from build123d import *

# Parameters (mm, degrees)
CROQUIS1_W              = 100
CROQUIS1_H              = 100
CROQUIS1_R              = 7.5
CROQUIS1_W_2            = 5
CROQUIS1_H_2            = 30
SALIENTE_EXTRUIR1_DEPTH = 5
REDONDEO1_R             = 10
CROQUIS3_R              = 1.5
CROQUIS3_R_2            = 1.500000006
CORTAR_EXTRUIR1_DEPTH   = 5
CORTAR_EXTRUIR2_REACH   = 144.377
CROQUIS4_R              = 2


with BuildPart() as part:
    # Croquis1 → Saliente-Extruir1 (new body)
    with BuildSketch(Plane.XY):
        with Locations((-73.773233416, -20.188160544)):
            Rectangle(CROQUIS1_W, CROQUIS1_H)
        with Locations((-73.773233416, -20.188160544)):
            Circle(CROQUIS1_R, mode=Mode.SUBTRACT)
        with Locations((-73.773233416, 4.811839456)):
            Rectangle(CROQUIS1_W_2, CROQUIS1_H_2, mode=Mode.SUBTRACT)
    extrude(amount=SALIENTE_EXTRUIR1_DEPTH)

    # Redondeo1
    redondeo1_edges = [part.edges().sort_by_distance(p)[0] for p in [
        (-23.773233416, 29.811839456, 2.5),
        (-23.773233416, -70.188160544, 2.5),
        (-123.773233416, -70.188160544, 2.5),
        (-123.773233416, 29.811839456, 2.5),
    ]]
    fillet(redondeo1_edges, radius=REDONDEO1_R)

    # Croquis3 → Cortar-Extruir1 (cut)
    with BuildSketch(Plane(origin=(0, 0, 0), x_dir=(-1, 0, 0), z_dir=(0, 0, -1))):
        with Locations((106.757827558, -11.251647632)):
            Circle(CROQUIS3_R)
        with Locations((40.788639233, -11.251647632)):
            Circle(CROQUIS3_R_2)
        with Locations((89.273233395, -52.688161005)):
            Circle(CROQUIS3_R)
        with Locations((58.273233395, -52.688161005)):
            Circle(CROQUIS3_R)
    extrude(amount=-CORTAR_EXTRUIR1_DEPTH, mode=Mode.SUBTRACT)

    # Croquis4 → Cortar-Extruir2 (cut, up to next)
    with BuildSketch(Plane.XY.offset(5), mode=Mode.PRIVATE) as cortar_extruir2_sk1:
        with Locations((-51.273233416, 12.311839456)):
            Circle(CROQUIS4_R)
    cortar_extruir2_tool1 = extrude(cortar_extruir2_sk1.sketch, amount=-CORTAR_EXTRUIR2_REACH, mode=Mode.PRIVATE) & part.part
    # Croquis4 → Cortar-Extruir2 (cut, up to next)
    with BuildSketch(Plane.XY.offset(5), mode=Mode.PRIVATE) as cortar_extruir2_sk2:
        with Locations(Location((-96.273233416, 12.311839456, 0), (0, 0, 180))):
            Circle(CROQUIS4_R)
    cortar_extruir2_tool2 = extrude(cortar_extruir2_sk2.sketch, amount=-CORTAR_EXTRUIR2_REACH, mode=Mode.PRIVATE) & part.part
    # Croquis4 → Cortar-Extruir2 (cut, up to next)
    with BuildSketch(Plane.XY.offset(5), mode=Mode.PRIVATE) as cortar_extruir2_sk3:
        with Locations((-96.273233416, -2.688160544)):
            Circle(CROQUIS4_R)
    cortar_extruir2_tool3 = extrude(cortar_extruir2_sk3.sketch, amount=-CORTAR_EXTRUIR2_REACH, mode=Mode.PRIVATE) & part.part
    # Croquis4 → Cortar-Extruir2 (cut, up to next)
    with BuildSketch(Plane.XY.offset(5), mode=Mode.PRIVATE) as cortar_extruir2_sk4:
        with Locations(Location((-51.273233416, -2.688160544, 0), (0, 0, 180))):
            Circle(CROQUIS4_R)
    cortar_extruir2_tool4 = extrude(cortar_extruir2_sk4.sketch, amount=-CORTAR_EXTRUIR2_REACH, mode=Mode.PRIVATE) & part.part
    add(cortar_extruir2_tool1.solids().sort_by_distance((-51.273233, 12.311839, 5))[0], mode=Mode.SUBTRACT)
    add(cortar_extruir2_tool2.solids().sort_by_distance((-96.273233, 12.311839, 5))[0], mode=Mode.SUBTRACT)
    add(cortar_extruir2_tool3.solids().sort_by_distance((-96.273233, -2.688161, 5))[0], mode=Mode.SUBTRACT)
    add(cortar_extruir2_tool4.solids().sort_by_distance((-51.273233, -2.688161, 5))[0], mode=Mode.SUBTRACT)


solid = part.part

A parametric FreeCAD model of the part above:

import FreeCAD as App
import Part
import Sketcher
Q = App.Units.Quantity


def edges_at(feature, points):
    """Names of the edges that pass closest to the given points."""
    edges = feature.Shape.Edges
    near = lambda p: min(range(len(edges)), key=lambda i: edges[i].distToShape(Part.Vertex(*p))[0])
    return sorted({f"Edge{near(p) + 1}" for p in points})

doc = App.newDocument("Part")
body = doc.addObject("PartDesign::Body", "Body")

# Sketch on XY plane
sketch1 = doc.addObject("Sketcher::SketchObject", "Sketch")
body.addObject(sketch1)
sketch1.AttachmentSupport = (doc.XY_Plane, [""])
sketch1.MapMode = "FlatFace"
sketch1.addGeometry([
    Part.LineSegment(App.Vector(-124, 30, 0), App.Vector(-124, -70, 0)),  # 0
    Part.LineSegment(App.Vector(-124, -70, 0), App.Vector(-24, -70, 0)),  # 1
    Part.LineSegment(App.Vector(-24, -70, 0), App.Vector(-24, 30, 0)),  # 2
    Part.LineSegment(App.Vector(-24, 30, 0), App.Vector(-124, 30, 0)),  # 3
    Part.Circle(App.Vector(-74, -20, 0), App.Vector(0, 0, 1), 8),  # 4
    Part.LineSegment(App.Vector(-71, -10, 0), App.Vector(-76, -10, 0)),  # 5
    Part.LineSegment(App.Vector(-76, -10, 0), App.Vector(-76, 20, 0)),  # 6
    Part.LineSegment(App.Vector(-76, 20, 0), App.Vector(-71, 20, 0)),  # 7
    Part.LineSegment(App.Vector(-71, 20, 0), App.Vector(-71, -10, 0)),  # 8
], False)
sketch1.addConstraint([
    Sketcher.Constraint("Coincident", 0, 2, 1, 1),
    Sketcher.Constraint("Coincident", 1, 2, 2, 1),
    Sketcher.Constraint("Coincident", 2, 2, 3, 1),
    Sketcher.Constraint("Coincident", 3, 2, 0, 1),
    Sketcher.Constraint("Coincident", 5, 2, 6, 1),
    Sketcher.Constraint("Coincident", 6, 2, 7, 1),
    Sketcher.Constraint("Coincident", 7, 2, 8, 1),
    Sketcher.Constraint("Coincident", 8, 2, 5, 1),
    Sketcher.Constraint("Vertical", 0),
    Sketcher.Constraint("Horizontal", 1),
    Sketcher.Constraint("Vertical", 2),
    Sketcher.Constraint("Horizontal", 3),
    Sketcher.Constraint("Horizontal", 5),
    Sketcher.Constraint("Vertical", 6),
    Sketcher.Constraint("Horizontal", 7),
    Sketcher.Constraint("Vertical", 8),
    Sketcher.Constraint("Equal", 3, 0),
    Sketcher.Constraint("Diameter", 4, Q("15 mm")),
    Sketcher.Constraint("DistanceX", 1, 1, 1, 2, Q("100 mm")),
    Sketcher.Constraint("DistanceX", 5, 2, 5, 1, Q("5 mm")),
    Sketcher.Constraint("DistanceY", 6, 1, 6, 2, Q("30 mm")),
    Sketcher.Constraint("DistanceX", 0, 2, 4, 3, Q("50 mm")),
    Sketcher.Constraint("DistanceY", 0, 2, 4, 3, Q("50 mm")),
    Sketcher.Constraint("DistanceY", 4, 3, 5, 2, Q("10 mm")),
    Sketcher.Constraint("DistanceX", 5, 2, 4, 3, Q("2.5 mm")),
    Sketcher.Constraint("DistanceY", 4, 3, -1, 1, Q("20.188161 mm")),
    Sketcher.Constraint("DistanceX", 4, 3, -1, 1, Q("73.773233 mm")),
])
pad1 = doc.addObject("PartDesign::Pad", "Pad")
body.addObject(pad1)
pad1.Profile = sketch1
pad1.Length = 5
doc.recompute()

fillet = doc.addObject("PartDesign::Fillet", "Fillet")
body.addObject(fillet)
fillet.Base = (pad1, edges_at(pad1, [
    (-23.773, 29.812, 2.5),
    (-23.773, -70.188, 2.5),
    (-123.773, -70.188, 2.5),
    (-123.773, 29.812, 2.5),
]))
fillet.Radius = 10

# Sketch on XY plane
sketch2 = doc.addObject("Sketcher::SketchObject", "Sketch001")
body.addObject(sketch2)
sketch2.AttachmentSupport = (doc.XY_Plane, [""])
sketch2.MapMode = "FlatFace"
sketch2.addGeometry([
    Part.Circle(App.Vector(-106.8, -11.3, 0), App.Vector(0, 0, 1), 1.5),
    Part.Circle(App.Vector(-40.8, -11.3, 0), App.Vector(0, 0, 1), 1.5),
    Part.Circle(App.Vector(-89.3, -52.7, 0), App.Vector(0, 0, 1), 1.5),
    Part.Circle(App.Vector(-58.3, -52.7, 0), App.Vector(0, 0, 1), 1.5),
], False)
sketch2.addConstraint([
    Sketcher.Constraint("Equal", 0, 1),
    Sketcher.Constraint("Equal", 1, 2),
    Sketcher.Constraint("Equal", 2, 3),
    Sketcher.Constraint("Horizontal", 0, 3, 1, 3),
    Sketcher.Constraint("Horizontal", 2, 3, 3, 3),
    Sketcher.Constraint("Diameter", 0, Q("3 mm")),
    Sketcher.Constraint("DistanceX", 2, 3, 3, 3, Q("31 mm")),
    Sketcher.Constraint("DistanceX", 1, 3, -1, 1, Q("40.788639 mm")),
    Sketcher.Constraint("DistanceY", 2, 3, -1, 1, Q("52.688161 mm")),
    Sketcher.Constraint("DistanceX", 0, 3, 1, 3, Q("65.969188 mm")),
    Sketcher.Constraint("DistanceY", 0, 3, -1, 1, Q("11.251648 mm")),
    Sketcher.Constraint("DistanceX", 2, 3, -1, 1, Q("89.273233 mm")),
])
pocket1 = doc.addObject("PartDesign::Pocket", "Pocket")
body.addObject(pocket1)
pocket1.Profile = sketch2
pocket1.Length = 5
pocket1.Reversed = True

# Sketch on XY plane
sketch3 = doc.addObject("Sketcher::SketchObject", "Sketch002")
body.addObject(sketch3)
sketch3.AttachmentSupport = (doc.XY_Plane, [""])
sketch3.MapMode = "FlatFace"
sketch3.AttachmentOffset = App.Placement(App.Vector(0, 0, 5), App.Rotation())
sketch3.addGeometry(Part.Circle(App.Vector(-51.3, 12.3, 0), App.Vector(0, 0, 1), 2), False)
sketch3.addConstraint([
    Sketcher.Constraint("Diameter", 0, Q("4 mm")),
    Sketcher.Constraint("DistanceY", -1, 1, 0, 3, Q("12.311839 mm")),
    Sketcher.Constraint("DistanceX", 0, 3, -1, 1, Q("51.273233 mm")),
])
pocket2 = doc.addObject("PartDesign::Pocket", "Pocket001")
body.addObject(pocket2)
pocket2.Profile = sketch3
pocket2.Type = "UpToFirst"

# Sketch on XY plane
sketch4 = doc.addObject("Sketcher::SketchObject", "Sketch003")
body.addObject(sketch4)
sketch4.AttachmentSupport = (doc.XY_Plane, [""])
sketch4.MapMode = "FlatFace"
sketch4.AttachmentOffset = App.Placement(App.Vector(0, 0, 5), App.Rotation())
sketch4.addGeometry(Part.Circle(App.Vector(-96.3, 12.3, 0), App.Vector(0, 0, 1), 2), False)
sketch4.addConstraint([
    Sketcher.Constraint("Diameter", 0, Q("4 mm")),
    Sketcher.Constraint("DistanceY", -1, 1, 0, 3, Q("12.311839 mm")),
    Sketcher.Constraint("DistanceX", 0, 3, -1, 1, Q("96.273233 mm")),
])
pocket3 = doc.addObject("PartDesign::Pocket", "Pocket002")
body.addObject(pocket3)
pocket3.Profile = sketch4
pocket3.Type = "UpToFirst"

# Sketch on XY plane
sketch5 = doc.addObject("Sketcher::SketchObject", "Sketch004")
body.addObject(sketch5)
sketch5.AttachmentSupport = (doc.XY_Plane, [""])
sketch5.MapMode = "FlatFace"
sketch5.AttachmentOffset = App.Placement(App.Vector(0, 0, 5), App.Rotation())
sketch5.addGeometry(Part.Circle(App.Vector(-96.3, -2.7, 0), App.Vector(0, 0, 1), 2), False)
sketch5.addConstraint([
    Sketcher.Constraint("Diameter", 0, Q("4 mm")),
    Sketcher.Constraint("DistanceY", 0, 3, -1, 1, Q("2.688161 mm")),
    Sketcher.Constraint("DistanceX", 0, 3, -1, 1, Q("96.273233 mm")),
])
pocket4 = doc.addObject("PartDesign::Pocket", "Pocket003")
body.addObject(pocket4)
pocket4.Profile = sketch5
pocket4.Type = "UpToFirst"

# Sketch on XY plane
sketch6 = doc.addObject("Sketcher::SketchObject", "Sketch005")
body.addObject(sketch6)
sketch6.AttachmentSupport = (doc.XY_Plane, [""])
sketch6.MapMode = "FlatFace"
sketch6.AttachmentOffset = App.Placement(App.Vector(0, 0, 5), App.Rotation())
sketch6.addGeometry(Part.Circle(App.Vector(-51.3, -2.7, 0), App.Vector(0, 0, 1), 2), False)
sketch6.addConstraint([
    Sketcher.Constraint("Diameter", 0, Q("4 mm")),
    Sketcher.Constraint("DistanceY", 0, 3, -1, 1, Q("2.688161 mm")),
    Sketcher.Constraint("DistanceX", 0, 3, -1, 1, Q("51.273233 mm")),
])
pocket5 = doc.addObject("PartDesign::Pocket", "Pocket004")
body.addObject(pocket5)
pocket5.Profile = sketch6
pocket5.Type = "UpToFirst"

doc.recompute()
